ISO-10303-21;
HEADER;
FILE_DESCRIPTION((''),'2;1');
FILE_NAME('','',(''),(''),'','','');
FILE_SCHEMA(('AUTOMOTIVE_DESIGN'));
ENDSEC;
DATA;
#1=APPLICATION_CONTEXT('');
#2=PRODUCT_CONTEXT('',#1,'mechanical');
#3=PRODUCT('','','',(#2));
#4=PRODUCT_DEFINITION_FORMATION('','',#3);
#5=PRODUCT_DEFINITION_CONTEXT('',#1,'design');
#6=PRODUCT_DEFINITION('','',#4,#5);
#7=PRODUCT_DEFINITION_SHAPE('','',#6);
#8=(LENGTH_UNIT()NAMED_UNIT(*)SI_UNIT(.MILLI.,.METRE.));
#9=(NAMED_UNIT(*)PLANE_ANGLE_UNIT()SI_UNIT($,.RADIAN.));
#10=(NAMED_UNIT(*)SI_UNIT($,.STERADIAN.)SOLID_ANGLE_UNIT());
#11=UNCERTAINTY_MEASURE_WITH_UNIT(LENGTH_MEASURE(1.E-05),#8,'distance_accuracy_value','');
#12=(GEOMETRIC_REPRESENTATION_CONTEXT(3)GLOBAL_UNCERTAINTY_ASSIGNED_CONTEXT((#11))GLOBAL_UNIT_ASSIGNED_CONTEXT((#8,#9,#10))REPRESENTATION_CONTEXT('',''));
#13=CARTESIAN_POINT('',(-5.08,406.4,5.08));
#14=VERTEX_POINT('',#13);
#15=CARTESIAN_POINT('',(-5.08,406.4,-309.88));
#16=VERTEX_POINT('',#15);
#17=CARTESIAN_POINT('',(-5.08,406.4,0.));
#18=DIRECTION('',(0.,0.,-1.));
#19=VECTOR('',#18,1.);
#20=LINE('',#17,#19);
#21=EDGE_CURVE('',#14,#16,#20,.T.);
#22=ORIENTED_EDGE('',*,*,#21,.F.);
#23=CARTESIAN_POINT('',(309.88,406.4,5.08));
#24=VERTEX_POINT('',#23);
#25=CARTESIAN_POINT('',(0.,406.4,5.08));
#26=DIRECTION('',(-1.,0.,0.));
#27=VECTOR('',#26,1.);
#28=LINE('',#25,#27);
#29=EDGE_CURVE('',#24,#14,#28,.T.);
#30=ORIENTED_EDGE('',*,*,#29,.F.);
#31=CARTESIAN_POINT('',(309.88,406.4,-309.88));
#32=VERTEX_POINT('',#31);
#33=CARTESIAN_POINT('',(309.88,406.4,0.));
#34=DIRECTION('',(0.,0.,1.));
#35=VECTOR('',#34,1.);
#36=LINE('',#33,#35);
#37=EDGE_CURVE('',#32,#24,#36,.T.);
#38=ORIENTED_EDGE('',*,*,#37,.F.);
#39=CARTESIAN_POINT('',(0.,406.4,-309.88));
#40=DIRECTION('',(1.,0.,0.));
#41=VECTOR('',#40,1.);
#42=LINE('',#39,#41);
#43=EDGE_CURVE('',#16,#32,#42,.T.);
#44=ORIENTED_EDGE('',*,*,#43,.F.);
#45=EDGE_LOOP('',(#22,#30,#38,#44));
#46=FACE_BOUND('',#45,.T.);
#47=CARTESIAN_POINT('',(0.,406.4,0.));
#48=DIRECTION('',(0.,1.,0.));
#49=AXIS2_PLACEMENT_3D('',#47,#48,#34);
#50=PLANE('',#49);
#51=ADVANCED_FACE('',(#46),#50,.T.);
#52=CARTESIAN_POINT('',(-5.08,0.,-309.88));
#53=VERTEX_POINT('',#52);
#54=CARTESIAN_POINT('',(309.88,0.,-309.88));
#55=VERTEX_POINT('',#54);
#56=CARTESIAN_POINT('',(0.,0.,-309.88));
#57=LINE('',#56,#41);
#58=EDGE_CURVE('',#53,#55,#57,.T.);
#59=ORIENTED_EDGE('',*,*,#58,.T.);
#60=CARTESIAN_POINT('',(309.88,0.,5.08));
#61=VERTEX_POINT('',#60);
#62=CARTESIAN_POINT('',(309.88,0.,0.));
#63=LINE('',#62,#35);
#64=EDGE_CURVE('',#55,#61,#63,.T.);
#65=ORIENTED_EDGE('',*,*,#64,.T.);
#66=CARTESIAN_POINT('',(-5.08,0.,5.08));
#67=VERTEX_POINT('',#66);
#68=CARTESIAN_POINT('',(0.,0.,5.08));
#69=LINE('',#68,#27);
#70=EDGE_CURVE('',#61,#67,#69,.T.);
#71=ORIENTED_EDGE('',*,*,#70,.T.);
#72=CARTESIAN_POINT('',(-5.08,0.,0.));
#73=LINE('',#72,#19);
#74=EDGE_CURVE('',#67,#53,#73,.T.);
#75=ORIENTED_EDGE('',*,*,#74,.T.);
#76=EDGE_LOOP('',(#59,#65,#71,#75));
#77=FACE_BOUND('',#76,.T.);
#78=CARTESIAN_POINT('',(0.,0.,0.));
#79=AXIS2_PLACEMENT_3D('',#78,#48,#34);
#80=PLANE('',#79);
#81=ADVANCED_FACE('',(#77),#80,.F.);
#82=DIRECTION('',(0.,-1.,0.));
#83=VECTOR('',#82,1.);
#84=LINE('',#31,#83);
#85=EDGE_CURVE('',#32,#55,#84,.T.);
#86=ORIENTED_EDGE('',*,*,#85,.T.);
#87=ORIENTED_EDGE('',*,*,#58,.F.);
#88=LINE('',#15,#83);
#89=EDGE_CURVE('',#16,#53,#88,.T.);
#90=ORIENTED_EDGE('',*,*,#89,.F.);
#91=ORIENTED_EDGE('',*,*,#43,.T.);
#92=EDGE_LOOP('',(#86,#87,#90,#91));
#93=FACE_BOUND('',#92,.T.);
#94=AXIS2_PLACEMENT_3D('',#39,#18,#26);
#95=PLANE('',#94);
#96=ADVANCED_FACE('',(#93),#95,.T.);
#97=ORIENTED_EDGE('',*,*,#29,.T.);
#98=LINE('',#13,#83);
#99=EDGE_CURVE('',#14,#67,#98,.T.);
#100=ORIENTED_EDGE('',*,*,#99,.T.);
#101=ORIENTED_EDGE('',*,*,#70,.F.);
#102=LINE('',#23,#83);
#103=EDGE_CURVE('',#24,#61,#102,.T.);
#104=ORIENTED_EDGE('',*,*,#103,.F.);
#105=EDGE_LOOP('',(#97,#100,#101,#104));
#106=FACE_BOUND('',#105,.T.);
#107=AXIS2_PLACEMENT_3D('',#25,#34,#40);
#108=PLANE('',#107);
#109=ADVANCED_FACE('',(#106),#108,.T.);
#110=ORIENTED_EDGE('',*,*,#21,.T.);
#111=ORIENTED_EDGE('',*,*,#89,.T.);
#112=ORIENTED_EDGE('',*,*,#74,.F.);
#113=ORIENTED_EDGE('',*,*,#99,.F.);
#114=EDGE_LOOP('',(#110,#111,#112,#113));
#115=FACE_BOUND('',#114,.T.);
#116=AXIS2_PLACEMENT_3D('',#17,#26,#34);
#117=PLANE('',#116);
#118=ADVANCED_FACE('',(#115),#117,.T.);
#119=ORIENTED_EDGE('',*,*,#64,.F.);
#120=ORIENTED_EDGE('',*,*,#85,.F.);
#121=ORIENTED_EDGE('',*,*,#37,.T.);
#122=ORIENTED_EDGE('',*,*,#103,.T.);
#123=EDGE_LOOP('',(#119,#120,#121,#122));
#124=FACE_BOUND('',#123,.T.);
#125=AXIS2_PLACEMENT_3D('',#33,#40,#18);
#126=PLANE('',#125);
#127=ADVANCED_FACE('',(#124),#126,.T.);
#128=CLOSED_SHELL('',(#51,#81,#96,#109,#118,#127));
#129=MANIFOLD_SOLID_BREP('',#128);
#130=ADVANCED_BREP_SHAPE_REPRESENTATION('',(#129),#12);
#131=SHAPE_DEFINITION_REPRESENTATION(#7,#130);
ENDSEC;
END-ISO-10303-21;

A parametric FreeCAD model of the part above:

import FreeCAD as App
import Part
import Sketcher
Q = App.Units.Quantity

doc = App.newDocument("Part")
body = doc.addObject("PartDesign::Body", "Body")

# Sketch on XZ plane
sketch1 = body.newObject("Sketcher::SketchObject", "Sketch")
sketch1.AttachmentSupport = (doc.getObject("XZ_Plane"), [""])
sketch1.MapMode = "FlatFace"
sketch1.addGeometry(Part.LineSegment(App.Vector(-5, -310, 0), App.Vector(-5, 5, 0)), False)
sketch1.addGeometry(Part.LineSegment(App.Vector(-5, 5, 0), App.Vector(310, 5, 0)), False)
sketch1.addGeometry(Part.LineSegment(App.Vector(310, 5, 0), App.Vector(310, -310, 0)), False)
sketch1.addGeometry(Part.LineSegment(App.Vector(310, -310, 0), App.Vector(-5, -310, 0)), False)
sketch1.addConstraint(Sketcher.Constraint("Coincident", 0, 2, 1, 1))
sketch1.addConstraint(Sketcher.Constraint("Coincident", 1, 2, 2, 1))
sketch1.addConstraint(Sketcher.Constraint("Coincident", 2, 2, 3, 1))
sketch1.addConstraint(Sketcher.Constraint("Coincident", 3, 2, 0, 1))
sketch1.addConstraint(Sketcher.Constraint("Vertical", 0))
sketch1.addConstraint(Sketcher.Constraint("Horizontal", 1))
sketch1.addConstraint(Sketcher.Constraint("Vertical", 2))
sketch1.addConstraint(Sketcher.Constraint("Horizontal", 3))
sketch1.addConstraint(Sketcher.Constraint("Equal", 3, 0))
sketch1.addConstraint(Sketcher.Constraint("DistanceX", 1, 1, 1, 2, Q("12.4 in")))
sketch1.addConstraint(Sketcher.Constraint("DistanceX", 0, 2, -1, 1, Q("0.2 in")))
sketch1.addConstraint(Sketcher.Constraint("DistanceY", -1, 1, 0, 2, Q("0.2 in")))
pad1 = body.newObject("PartDesign::Pad", "Pad")
pad1.Profile = sketch1
pad1.Length = Q("16 in")
pad1.Reversed = True

doc.recompute()
